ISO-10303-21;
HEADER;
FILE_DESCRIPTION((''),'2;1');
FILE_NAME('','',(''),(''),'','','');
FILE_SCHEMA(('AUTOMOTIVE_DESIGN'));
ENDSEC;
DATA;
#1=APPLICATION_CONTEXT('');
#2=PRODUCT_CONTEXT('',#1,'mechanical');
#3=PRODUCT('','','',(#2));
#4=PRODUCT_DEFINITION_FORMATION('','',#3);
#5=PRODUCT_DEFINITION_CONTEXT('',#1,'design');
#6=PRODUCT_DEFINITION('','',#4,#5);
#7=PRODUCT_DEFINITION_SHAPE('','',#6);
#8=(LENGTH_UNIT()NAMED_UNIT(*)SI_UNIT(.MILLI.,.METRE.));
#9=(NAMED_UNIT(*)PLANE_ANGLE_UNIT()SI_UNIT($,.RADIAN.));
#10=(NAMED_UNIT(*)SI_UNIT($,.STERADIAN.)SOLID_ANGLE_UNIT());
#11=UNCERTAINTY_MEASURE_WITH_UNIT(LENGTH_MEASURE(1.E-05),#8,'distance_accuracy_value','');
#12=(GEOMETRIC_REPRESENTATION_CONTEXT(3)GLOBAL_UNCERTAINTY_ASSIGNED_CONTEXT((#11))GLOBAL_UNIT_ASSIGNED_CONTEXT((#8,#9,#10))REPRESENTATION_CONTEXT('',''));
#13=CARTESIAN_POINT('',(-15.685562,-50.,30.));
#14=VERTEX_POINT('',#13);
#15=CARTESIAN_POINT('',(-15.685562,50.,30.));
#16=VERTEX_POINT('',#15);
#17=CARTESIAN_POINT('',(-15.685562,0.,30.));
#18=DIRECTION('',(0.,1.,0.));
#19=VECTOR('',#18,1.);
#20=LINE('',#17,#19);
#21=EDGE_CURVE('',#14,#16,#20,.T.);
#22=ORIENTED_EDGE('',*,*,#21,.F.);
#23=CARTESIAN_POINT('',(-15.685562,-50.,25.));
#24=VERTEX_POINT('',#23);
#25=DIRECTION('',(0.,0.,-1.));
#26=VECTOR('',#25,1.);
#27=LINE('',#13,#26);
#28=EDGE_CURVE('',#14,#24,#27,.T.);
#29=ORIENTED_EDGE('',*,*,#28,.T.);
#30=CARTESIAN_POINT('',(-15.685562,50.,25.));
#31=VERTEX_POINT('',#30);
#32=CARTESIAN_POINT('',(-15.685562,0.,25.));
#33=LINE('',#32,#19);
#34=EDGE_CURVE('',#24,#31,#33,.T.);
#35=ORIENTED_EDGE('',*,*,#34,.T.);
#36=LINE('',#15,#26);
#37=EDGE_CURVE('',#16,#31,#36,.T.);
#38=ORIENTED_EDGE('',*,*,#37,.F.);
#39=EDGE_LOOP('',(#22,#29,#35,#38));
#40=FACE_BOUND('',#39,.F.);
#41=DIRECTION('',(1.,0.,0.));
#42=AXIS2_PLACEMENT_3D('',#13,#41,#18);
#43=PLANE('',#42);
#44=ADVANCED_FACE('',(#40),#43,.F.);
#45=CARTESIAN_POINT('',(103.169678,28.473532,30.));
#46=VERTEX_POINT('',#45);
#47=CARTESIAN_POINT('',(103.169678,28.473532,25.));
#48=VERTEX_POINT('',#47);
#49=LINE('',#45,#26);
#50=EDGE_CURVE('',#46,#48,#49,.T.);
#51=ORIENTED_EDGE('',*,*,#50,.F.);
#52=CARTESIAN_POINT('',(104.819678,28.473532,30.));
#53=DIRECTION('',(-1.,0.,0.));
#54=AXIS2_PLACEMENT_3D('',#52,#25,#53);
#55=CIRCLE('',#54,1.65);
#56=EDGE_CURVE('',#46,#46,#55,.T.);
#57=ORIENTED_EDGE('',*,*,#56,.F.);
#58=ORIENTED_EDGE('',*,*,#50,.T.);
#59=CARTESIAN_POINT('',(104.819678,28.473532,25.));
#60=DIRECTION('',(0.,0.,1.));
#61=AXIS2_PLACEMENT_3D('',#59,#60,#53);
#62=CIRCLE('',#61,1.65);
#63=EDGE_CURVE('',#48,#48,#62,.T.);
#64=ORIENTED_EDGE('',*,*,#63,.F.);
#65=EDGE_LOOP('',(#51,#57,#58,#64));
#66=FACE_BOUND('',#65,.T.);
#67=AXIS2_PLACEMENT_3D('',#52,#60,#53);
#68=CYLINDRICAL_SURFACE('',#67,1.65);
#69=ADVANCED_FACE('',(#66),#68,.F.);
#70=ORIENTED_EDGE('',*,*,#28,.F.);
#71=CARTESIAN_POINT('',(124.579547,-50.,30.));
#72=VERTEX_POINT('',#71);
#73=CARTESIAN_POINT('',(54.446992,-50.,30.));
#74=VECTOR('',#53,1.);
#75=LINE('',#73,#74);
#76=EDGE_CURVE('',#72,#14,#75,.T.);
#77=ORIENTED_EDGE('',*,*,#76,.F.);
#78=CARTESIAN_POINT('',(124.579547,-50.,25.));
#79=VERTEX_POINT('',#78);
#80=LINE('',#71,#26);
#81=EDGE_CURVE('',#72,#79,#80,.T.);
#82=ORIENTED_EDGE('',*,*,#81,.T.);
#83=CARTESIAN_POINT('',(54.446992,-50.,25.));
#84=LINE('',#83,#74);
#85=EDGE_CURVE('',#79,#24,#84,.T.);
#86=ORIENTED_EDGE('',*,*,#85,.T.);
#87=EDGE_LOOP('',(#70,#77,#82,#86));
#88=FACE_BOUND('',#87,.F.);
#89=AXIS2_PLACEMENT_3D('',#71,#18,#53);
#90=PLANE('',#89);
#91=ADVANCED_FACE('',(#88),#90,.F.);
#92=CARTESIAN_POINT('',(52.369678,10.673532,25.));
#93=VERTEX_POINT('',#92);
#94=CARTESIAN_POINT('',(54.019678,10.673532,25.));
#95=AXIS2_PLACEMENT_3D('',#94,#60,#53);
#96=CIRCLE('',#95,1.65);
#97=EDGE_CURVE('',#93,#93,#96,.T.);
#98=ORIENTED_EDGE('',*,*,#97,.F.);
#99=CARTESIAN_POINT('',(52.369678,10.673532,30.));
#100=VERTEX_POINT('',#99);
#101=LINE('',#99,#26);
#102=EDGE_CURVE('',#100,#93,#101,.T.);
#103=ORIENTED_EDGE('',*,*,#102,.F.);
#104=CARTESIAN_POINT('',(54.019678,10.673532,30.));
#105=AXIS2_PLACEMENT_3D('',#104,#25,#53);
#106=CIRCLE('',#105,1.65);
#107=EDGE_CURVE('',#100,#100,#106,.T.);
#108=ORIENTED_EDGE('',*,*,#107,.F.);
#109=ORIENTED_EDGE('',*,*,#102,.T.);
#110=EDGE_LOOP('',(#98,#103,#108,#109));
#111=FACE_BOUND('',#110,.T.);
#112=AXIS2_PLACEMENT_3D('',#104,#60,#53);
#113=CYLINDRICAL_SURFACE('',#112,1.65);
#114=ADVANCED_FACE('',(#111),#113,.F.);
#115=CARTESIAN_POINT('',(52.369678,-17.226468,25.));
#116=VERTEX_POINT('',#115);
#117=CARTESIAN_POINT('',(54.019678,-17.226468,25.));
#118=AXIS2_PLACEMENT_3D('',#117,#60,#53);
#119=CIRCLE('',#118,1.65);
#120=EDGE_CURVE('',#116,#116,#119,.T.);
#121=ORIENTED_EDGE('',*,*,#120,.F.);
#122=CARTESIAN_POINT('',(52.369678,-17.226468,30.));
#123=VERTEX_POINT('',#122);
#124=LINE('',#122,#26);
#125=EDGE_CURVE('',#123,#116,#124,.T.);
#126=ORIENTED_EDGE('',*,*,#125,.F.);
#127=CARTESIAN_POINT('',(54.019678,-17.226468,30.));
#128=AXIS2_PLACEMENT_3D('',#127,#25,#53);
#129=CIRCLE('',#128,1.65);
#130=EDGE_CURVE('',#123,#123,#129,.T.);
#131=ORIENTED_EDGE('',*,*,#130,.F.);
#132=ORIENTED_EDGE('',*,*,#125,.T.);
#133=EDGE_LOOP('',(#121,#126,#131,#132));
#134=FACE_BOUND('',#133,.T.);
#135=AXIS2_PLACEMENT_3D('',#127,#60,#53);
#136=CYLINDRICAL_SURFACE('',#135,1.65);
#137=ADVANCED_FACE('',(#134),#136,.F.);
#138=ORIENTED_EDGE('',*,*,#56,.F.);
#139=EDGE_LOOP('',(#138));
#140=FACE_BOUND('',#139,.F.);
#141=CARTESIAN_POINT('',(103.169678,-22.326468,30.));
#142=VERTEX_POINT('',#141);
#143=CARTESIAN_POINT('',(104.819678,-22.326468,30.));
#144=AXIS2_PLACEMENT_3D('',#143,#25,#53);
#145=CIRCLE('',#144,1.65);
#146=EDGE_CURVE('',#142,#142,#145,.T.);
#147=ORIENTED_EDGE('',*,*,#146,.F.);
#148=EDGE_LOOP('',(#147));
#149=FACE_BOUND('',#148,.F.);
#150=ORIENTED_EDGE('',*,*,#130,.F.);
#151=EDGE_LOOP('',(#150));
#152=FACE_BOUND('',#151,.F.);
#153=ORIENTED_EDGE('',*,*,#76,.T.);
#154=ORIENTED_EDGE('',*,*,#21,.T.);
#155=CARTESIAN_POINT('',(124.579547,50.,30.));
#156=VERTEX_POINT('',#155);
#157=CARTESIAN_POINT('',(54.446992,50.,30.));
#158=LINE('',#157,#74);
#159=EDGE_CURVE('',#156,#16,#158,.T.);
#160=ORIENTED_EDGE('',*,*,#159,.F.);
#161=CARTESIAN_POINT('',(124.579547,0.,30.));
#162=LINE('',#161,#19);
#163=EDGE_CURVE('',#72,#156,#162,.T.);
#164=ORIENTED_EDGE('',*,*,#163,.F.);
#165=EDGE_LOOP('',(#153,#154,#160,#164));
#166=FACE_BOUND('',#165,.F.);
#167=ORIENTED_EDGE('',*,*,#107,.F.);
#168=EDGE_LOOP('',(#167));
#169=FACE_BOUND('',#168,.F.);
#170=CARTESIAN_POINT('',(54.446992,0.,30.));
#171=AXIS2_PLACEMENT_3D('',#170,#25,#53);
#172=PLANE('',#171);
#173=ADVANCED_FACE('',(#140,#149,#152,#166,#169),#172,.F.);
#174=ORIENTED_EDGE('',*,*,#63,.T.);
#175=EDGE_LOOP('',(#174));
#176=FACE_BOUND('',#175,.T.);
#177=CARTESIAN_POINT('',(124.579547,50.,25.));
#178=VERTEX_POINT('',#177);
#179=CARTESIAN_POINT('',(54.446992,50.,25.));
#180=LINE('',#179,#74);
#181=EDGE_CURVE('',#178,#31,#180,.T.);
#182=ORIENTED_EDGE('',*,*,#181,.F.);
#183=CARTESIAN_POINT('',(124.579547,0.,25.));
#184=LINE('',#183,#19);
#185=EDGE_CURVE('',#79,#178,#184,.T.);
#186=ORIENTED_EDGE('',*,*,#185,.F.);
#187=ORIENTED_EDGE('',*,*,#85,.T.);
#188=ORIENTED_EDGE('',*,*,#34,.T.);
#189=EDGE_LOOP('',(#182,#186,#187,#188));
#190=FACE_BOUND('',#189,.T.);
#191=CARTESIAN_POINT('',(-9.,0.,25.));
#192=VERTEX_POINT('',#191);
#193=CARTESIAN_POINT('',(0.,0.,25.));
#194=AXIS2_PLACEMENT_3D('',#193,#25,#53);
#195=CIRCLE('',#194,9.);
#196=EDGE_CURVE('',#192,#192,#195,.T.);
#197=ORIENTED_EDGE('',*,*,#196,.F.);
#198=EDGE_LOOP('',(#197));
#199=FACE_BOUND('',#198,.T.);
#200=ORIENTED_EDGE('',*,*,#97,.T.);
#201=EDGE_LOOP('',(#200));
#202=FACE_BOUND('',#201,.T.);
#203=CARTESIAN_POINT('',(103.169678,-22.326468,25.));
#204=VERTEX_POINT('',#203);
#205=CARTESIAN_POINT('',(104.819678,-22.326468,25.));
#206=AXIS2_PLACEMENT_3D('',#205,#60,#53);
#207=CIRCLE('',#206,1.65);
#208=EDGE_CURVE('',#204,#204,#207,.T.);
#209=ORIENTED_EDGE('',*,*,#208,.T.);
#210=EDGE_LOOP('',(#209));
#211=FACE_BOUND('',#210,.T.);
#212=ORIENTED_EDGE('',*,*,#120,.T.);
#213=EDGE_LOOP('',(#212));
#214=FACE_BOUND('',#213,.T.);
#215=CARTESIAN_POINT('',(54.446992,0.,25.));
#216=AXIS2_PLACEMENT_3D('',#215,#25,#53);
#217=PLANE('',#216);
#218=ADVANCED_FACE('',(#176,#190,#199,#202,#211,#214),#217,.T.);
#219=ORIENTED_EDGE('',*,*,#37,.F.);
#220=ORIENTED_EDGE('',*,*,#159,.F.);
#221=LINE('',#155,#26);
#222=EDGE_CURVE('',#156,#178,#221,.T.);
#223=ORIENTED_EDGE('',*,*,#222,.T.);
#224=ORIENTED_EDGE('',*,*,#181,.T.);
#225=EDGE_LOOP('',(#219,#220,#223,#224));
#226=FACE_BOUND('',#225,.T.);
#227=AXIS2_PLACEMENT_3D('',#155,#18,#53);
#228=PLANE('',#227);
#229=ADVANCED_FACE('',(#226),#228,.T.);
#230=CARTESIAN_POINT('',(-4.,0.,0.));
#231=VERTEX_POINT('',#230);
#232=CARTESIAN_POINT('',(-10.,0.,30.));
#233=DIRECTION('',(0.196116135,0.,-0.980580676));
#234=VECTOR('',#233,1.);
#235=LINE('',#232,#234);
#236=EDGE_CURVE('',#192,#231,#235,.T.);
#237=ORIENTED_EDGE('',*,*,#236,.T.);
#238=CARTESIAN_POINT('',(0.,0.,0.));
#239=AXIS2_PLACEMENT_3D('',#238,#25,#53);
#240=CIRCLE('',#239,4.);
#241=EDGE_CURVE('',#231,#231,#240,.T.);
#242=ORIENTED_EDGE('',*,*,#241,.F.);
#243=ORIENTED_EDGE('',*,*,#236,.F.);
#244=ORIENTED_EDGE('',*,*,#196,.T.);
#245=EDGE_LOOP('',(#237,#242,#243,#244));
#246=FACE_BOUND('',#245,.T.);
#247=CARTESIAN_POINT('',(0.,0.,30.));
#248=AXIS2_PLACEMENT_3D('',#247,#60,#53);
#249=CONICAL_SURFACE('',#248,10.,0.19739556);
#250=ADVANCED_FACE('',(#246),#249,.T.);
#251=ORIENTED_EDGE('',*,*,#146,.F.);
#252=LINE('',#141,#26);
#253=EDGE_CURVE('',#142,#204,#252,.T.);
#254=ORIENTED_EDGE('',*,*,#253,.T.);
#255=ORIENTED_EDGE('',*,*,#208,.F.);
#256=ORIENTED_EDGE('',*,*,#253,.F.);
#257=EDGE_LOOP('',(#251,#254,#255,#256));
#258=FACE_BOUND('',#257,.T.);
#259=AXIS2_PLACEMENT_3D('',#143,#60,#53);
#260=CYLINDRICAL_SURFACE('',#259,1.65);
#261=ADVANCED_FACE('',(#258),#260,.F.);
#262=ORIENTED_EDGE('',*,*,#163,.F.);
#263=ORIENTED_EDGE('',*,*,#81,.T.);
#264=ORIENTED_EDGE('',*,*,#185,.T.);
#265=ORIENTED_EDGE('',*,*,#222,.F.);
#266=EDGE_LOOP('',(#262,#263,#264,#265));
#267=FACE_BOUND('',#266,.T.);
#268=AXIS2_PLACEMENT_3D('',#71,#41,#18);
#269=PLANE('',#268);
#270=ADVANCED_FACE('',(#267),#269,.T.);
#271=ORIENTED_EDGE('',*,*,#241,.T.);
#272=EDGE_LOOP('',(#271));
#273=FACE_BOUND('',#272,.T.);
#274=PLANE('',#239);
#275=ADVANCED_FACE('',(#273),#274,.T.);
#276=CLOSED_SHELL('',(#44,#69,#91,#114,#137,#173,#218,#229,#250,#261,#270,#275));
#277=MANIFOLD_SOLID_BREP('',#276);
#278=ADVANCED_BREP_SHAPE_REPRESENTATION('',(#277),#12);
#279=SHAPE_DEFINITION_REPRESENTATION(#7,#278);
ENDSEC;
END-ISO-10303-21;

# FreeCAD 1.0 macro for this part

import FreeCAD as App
import Part
import Sketcher
from FreeCAD import Vector


def add_polygon(sketch, points):
    """Adds a closed chain of lines whose ends are joined by coincident constraints."""
    first, n = sketch.GeometryCount, len(points)
    for a, b in zip(points, points[1:] + points[:1]):
        sketch.addGeometry(Part.LineSegment(App.Vector(*a, 0), App.Vector(*b, 0)), False)
    for i in range(n):
        sketch.addConstraint(Sketcher.Constraint("Coincident", first + i, 2, first + (i + 1) % n, 1))

doc = App.newDocument("Part")
body = doc.addObject("PartDesign::Body", "Body")
body.AllowCompound = True

# Sketch on XY plane
sketch1 = doc.addObject("Sketcher::SketchObject", "Sketch")
body.addObject(sketch1)
sketch1.AttachmentSupport = (doc.XY_Plane, [""])
sketch1.MapMode = "FlatFace"
sketch1.addGeometry([
    Part.Circle(Vector(4.2, -22.3, 0), Vector(0, 0, 1), 1.6),
    Part.Circle(Vector(4.2, 28.5, 0), Vector(0, 0, 1), 1.6),
    Part.Circle(Vector(55, -17.2, 0), Vector(0, 0, 1), 1.6),
    Part.Circle(Vector(55, 10.7, 0), Vector(0, 0, 1), 1.6),
], False)
sketch1.addConstraint([
    Sketcher.Constraint("Equal", 0, 1),
    Sketcher.Constraint("Equal", 1, 2),
    Sketcher.Constraint("Equal", 2, 3),
    Sketcher.Constraint("Vertical", 0, 3, 1, 3),
    Sketcher.Constraint("Vertical", 2, 3, 3, 3),
    Sketcher.Constraint("Diameter", 0, 3.3),
    Sketcher.Constraint("DistanceY", 0, 3, 3, 3, 33.0),
    Sketcher.Constraint("DistanceY", 0, 3, 1, 3, 50.8),
    Sketcher.Constraint("DistanceX", 0, 3, 2, 3, 50.8),
    Sketcher.Constraint("DistanceY", 0, 3, 2, 3, 5.1),
    Sketcher.Constraint("DistanceY", -1, 1, 1, 3, 28.473532),
    Sketcher.Constraint("DistanceX", -1, 1, 0, 3, 4.180322),
])
pad1 = doc.addObject("PartDesign::Pad", "Pad")
body.addObject(pad1)
pad1.Profile = sketch1
pad1.Length = 10
body2 = doc.addObject("PartDesign::Body", "Body001")

# Sketch on XY plane
sketch2 = doc.addObject("Sketcher::SketchObject", "Sketch001")
body2.addObject(sketch2)
sketch2.AttachmentSupport = (doc.getObject("XY_Plane001"), [""])
sketch2.MapMode = "FlatFace"
add_polygon(sketch2, [(-16, 50), (-16, -50), (125, -50), (125, 50)])  # lines 0-3
sketch2.addConstraint([
    Sketcher.Constraint("Vertical", 0),
    Sketcher.Constraint("Horizontal", 1),
    Sketcher.Constraint("Vertical", 2),
    Sketcher.Constraint("Horizontal", 3),
    Sketcher.Constraint("DistanceY", 0, 2, 0, 1, 100.0),
    Sketcher.Constraint("DistanceY", 0, 2, -1, 1, 50.0),
    Sketcher.Constraint("DistanceX", 1, 1, 1, 2, 140.265109),
    Sketcher.Constraint("DistanceX", 0, 2, -1, 1, 15.579546),
])
pad2 = doc.addObject("PartDesign::Pad", "Pad001")
body2.addObject(pad2)
pad2.Profile = sketch2
pad2.Length = 5
doc.recompute()

boolean = doc.addObject("PartDesign::Boolean", "Boolean")
body2.addObject(boolean)
boolean.Type = "Cut"
boolean.addObjects([body])
body3 = doc.addObject("PartDesign::Body", "Body002")

# Sketch on XZ plane
sketch3 = doc.addObject("Sketcher::SketchObject", "Sketch002")
body3.addObject(sketch3)
sketch3.AttachmentSupport = (doc.getObject("XZ_Plane002"), [""])
sketch3.MapMode = "FlatFace"
add_polygon(sketch3, [(109, 0), (119, 0), (113, 30), (109, 30)])  # lines 0-3
sketch3.addGeometry(Part.LineSegment(Vector(109, 0, 0), Vector(109, 30, 0)), True)  # axis
sketch3.addConstraint([
    Sketcher.Constraint("Horizontal", 0),
    Sketcher.Constraint("Horizontal", 2),
    Sketcher.Constraint("Vertical", 3),
    Sketcher.Constraint("Vertical", 4),
    Sketcher.Constraint("Coincident", 4, 1, 3, 2),
    Sketcher.Constraint("PointOnObject", 0, 2, -1),
    Sketcher.Constraint("Horizontal", 1, 2, 4, 2),
    Sketcher.Constraint("DistanceX", 0, 1, 0, 2, 10.0),
    Sketcher.Constraint("DistanceX", 2, 2, 2, 1, 4.0),
    Sketcher.Constraint("DistanceY", 3, 2, 3, 1, 30.0),
    Sketcher.Constraint("DistanceX", -1, 1, 0, 2, 119.0),
])
revolution = doc.addObject("PartDesign::Revolution", "Revolution")
body3.addObject(revolution)
revolution.Profile = sketch3
revolution.ReferenceAxis = (sketch3, ["Axis0"])
revolution.Angle = 360
doc.recompute()

boolean2 = doc.addObject("PartDesign::Boolean", "Boolean001")
body3.addObject(boolean2)
boolean2.Type = "Fuse"
boolean2.addObjects([body2])
body4 = doc.addObject("PartDesign::Body", "Body003")
doc.recompute()

body3.Placement = App.Placement(Vector(109, 0, 30), App.Rotation(Vector(0, 1, 0), 180))
boolean3 = doc.addObject("PartDesign::Boolean", "Boolean002")
body4.addObject(boolean3)
boolean3.Type = "Fuse"
boolean3.addObjects([body3])

doc.recompute()
